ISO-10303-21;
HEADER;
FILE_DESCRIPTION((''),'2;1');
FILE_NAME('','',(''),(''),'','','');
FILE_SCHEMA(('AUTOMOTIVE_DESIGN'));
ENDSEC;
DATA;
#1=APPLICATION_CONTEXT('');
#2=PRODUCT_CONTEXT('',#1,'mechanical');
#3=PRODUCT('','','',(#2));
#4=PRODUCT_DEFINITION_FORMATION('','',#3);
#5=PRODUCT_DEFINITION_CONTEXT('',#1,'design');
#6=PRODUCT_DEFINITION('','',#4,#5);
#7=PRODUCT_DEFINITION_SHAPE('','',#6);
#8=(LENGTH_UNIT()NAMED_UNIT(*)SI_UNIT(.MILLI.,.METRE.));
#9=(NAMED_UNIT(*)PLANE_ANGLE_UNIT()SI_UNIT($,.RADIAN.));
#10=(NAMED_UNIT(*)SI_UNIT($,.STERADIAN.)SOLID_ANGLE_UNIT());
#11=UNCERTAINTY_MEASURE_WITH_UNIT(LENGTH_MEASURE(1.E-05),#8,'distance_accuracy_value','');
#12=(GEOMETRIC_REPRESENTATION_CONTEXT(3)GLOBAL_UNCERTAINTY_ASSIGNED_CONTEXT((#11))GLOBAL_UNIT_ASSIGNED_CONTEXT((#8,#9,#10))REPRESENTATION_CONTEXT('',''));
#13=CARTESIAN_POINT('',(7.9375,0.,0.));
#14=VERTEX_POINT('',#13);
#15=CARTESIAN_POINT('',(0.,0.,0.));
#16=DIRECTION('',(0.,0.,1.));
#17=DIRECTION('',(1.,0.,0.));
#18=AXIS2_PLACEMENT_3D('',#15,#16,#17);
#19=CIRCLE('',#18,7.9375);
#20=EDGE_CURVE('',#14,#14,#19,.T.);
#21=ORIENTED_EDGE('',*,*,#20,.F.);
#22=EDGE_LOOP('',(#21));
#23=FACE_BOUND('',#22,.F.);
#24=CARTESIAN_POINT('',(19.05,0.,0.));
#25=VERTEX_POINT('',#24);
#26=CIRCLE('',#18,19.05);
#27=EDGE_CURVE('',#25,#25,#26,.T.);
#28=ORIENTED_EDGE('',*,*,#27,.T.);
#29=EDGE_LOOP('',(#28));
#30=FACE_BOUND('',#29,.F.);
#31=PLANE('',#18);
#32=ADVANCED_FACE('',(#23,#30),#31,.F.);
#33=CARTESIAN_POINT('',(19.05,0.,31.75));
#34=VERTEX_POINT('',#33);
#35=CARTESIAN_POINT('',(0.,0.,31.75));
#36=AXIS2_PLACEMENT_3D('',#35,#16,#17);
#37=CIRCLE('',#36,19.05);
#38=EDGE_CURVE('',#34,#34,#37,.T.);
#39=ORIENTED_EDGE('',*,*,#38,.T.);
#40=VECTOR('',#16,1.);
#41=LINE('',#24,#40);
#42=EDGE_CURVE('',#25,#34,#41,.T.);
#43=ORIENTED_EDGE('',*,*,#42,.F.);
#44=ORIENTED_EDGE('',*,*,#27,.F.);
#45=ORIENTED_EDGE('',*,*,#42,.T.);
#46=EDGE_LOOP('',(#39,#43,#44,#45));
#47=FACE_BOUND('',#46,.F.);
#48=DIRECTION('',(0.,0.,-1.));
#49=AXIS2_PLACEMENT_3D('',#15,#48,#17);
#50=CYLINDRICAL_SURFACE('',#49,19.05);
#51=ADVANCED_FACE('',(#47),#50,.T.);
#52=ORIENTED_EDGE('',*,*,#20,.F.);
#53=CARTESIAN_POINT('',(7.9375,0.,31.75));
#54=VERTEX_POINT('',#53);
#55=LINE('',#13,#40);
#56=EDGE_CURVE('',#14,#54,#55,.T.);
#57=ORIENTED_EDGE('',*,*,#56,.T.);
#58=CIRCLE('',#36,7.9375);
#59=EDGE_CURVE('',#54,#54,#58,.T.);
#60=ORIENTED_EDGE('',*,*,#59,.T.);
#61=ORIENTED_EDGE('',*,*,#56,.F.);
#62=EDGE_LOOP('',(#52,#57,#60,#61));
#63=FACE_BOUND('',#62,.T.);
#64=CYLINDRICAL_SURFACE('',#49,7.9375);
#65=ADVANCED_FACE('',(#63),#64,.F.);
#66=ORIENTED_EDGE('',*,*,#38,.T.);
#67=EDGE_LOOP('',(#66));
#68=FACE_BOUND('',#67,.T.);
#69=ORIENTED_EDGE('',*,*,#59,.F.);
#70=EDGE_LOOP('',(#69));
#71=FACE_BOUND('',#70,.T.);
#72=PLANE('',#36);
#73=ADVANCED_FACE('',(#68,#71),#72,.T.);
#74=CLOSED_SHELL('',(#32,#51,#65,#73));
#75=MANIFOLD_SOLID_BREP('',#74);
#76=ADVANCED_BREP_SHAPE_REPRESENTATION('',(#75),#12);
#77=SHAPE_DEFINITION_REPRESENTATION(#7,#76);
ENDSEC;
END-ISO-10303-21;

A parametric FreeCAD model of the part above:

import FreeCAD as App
import Part
import Sketcher
Q = App.Units.Quantity

doc = App.newDocument("Part")
params = doc.addObject("Spreadsheet::Sheet", "Params")
for row, (alias, value) in enumerate([
    ("sketch1_diameter", "1.5 in"),
    ("sketch1_diameter2", "0.625 in"),
    ("pad1_length", "1.25 in"),
], start=1):
    params.set(f"A{row}", alias)
    params.set(f"B{row}", "=" + value)
    params.setAlias(f"B{row}", alias)

body = doc.addObject("PartDesign::Body", "Body")

# Sketch on XY plane
sketch1 = body.newObject("Sketcher::SketchObject", "Sketch")
sketch1.AttachmentSupport = (doc.getObject("XY_Plane"), [""])
sketch1.MapMode = "FlatFace"
sketch1.addGeometry([
    Part.Circle(App.Vector(0, 0, 0), App.Vector(0, 0, 1), 19),
    Part.Circle(App.Vector(0, 0, 0), App.Vector(0, 0, 1), 8),
], False)
sketch1.addConstraint([
    Sketcher.Constraint("Coincident", 0, 3, -1, 1),
    Sketcher.Constraint("Coincident", 1, 3, -1, 1),
    Sketcher.Constraint("Diameter", 0, Q("1.5 in")),
    Sketcher.Constraint("Diameter", 1, Q("0.625 in")),
])
sketch1.setExpression("Constraints[2]", "Params.sketch1_diameter")
sketch1.setExpression("Constraints[3]", "Params.sketch1_diameter2")
pad1 = body.newObject("PartDesign::Pad", "Pad")
pad1.Profile = sketch1
pad1.setExpression("Length", "Params.pad1_length")

doc.recompute()
